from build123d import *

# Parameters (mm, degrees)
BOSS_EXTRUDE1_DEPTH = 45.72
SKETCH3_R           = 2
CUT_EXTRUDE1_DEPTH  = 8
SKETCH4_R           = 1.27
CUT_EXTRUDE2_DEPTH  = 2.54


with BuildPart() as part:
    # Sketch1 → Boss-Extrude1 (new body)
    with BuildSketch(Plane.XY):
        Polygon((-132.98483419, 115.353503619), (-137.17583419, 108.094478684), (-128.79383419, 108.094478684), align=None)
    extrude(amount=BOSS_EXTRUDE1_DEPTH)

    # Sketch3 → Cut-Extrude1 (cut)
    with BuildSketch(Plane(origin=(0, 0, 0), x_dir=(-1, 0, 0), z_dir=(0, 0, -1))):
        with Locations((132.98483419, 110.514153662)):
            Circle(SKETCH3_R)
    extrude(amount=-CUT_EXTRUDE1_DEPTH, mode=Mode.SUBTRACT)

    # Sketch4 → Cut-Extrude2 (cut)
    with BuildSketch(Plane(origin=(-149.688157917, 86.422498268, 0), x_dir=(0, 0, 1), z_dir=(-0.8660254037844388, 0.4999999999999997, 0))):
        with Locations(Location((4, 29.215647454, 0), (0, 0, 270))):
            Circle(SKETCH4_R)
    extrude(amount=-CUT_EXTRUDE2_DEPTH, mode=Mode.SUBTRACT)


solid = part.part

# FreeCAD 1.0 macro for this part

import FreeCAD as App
import Part
import Sketcher

V = App.Vector
Q = App.Units.Quantity

doc = App.newDocument("Part")
body = doc.addObject("PartDesign::Body", "Body")

# Sketch on XY plane
sketch1 = doc.addObject("Sketcher::SketchObject", "Sketch")
body.addObject(sketch1)
sketch1.AttachmentSupport = (doc.XY_Plane, [""])
sketch1.MapMode = "FlatFace"
sketch1.addGeometry(Part.LineSegment(V(-133, 115, 0), V(-137, 108, 0)), False)
sketch1.addGeometry(Part.LineSegment(V(-137, 108, 0), V(-129, 108, 0)), False)
sketch1.addGeometry(Part.LineSegment(V(-129, 108, 0), V(-133, 115, 0)), False)
sketch1.addConstraint(Sketcher.Constraint("Coincident", 0, 2, 1, 1))
sketch1.addConstraint(Sketcher.Constraint("Coincident", 1, 2, 2, 1))
sketch1.addConstraint(Sketcher.Constraint("Coincident", 2, 2, 0, 1))
sketch1.addConstraint(Sketcher.Constraint("Horizontal", 1))
sketch1.addConstraint(Sketcher.Constraint("Equal", 0, 2))
sketch1.addConstraint(Sketcher.Constraint("Angle", 0, Q("-120 deg")))
sketch1.addConstraint(Sketcher.Constraint("DistanceX", 1, 1, 1, 2, Q("0.33 in")))
sketch1.addConstraint(Sketcher.Constraint("DistanceY", -1, 1, 0, 2, 108.094479))
sketch1.addConstraint(Sketcher.Constraint("DistanceX", 0, 2, -1, 1, 137.175834))
pad1 = doc.addObject("PartDesign::Pad", "Pad")
body.addObject(pad1)
pad1.Profile = sketch1
pad1.Length = Q("1.8 in")

# Sketch on XY plane
sketch2 = doc.addObject("Sketcher::SketchObject", "Sketch001")
body.addObject(sketch2)
sketch2.AttachmentSupport = (doc.XY_Plane, [""])
sketch2.MapMode = "FlatFace"
sketch2.addGeometry(Part.Circle(V(-133, 110.5, 0), V(0, 0, 1), 2), False)
sketch2.addConstraint(Sketcher.Constraint("Diameter", 0, 4.0))
sketch2.addConstraint(Sketcher.Constraint("DistanceX", 0, 3, -1, 1, 132.984834))
sketch2.addConstraint(Sketcher.Constraint("DistanceY", -1, 1, 0, 3, 110.514154))
pocket1 = doc.addObject("PartDesign::Pocket", "Pocket")
body.addObject(pocket1)
pocket1.Profile = sketch2
pocket1.Length = 8
pocket1.Reversed = True

# Sketch on an angled plane
sketch3 = doc.addObject("Sketcher::SketchObject", "Sketch002")
body.addObject(sketch3)
sketch3.Placement = App.Placement(V(-149.688158, 86.422498, 0), App.Rotation(V(0, 0, 1), V(0.5, 0.866025404, 0), V(-0.866025404, 0.5, 0), "ZXY"))
sketch3.addGeometry(Part.Circle(V(4, 29.2, 0), V(0, 0, 1), 1.3), False)
sketch3.addConstraint(Sketcher.Constraint("Diameter", 0, Q("0.1 in")))
sketch3.addConstraint(Sketcher.Constraint("DistanceX", -1, 1, 0, 3, 4.0))
sketch3.addConstraint(Sketcher.Constraint("DistanceY", -1, 1, 0, 3, 29.215647))
pocket2 = doc.addObject("PartDesign::Pocket", "Pocket001")
body.addObject(pocket2)
pocket2.Profile = sketch3
pocket2.Length = Q("0.1 in")

doc.recompute()
